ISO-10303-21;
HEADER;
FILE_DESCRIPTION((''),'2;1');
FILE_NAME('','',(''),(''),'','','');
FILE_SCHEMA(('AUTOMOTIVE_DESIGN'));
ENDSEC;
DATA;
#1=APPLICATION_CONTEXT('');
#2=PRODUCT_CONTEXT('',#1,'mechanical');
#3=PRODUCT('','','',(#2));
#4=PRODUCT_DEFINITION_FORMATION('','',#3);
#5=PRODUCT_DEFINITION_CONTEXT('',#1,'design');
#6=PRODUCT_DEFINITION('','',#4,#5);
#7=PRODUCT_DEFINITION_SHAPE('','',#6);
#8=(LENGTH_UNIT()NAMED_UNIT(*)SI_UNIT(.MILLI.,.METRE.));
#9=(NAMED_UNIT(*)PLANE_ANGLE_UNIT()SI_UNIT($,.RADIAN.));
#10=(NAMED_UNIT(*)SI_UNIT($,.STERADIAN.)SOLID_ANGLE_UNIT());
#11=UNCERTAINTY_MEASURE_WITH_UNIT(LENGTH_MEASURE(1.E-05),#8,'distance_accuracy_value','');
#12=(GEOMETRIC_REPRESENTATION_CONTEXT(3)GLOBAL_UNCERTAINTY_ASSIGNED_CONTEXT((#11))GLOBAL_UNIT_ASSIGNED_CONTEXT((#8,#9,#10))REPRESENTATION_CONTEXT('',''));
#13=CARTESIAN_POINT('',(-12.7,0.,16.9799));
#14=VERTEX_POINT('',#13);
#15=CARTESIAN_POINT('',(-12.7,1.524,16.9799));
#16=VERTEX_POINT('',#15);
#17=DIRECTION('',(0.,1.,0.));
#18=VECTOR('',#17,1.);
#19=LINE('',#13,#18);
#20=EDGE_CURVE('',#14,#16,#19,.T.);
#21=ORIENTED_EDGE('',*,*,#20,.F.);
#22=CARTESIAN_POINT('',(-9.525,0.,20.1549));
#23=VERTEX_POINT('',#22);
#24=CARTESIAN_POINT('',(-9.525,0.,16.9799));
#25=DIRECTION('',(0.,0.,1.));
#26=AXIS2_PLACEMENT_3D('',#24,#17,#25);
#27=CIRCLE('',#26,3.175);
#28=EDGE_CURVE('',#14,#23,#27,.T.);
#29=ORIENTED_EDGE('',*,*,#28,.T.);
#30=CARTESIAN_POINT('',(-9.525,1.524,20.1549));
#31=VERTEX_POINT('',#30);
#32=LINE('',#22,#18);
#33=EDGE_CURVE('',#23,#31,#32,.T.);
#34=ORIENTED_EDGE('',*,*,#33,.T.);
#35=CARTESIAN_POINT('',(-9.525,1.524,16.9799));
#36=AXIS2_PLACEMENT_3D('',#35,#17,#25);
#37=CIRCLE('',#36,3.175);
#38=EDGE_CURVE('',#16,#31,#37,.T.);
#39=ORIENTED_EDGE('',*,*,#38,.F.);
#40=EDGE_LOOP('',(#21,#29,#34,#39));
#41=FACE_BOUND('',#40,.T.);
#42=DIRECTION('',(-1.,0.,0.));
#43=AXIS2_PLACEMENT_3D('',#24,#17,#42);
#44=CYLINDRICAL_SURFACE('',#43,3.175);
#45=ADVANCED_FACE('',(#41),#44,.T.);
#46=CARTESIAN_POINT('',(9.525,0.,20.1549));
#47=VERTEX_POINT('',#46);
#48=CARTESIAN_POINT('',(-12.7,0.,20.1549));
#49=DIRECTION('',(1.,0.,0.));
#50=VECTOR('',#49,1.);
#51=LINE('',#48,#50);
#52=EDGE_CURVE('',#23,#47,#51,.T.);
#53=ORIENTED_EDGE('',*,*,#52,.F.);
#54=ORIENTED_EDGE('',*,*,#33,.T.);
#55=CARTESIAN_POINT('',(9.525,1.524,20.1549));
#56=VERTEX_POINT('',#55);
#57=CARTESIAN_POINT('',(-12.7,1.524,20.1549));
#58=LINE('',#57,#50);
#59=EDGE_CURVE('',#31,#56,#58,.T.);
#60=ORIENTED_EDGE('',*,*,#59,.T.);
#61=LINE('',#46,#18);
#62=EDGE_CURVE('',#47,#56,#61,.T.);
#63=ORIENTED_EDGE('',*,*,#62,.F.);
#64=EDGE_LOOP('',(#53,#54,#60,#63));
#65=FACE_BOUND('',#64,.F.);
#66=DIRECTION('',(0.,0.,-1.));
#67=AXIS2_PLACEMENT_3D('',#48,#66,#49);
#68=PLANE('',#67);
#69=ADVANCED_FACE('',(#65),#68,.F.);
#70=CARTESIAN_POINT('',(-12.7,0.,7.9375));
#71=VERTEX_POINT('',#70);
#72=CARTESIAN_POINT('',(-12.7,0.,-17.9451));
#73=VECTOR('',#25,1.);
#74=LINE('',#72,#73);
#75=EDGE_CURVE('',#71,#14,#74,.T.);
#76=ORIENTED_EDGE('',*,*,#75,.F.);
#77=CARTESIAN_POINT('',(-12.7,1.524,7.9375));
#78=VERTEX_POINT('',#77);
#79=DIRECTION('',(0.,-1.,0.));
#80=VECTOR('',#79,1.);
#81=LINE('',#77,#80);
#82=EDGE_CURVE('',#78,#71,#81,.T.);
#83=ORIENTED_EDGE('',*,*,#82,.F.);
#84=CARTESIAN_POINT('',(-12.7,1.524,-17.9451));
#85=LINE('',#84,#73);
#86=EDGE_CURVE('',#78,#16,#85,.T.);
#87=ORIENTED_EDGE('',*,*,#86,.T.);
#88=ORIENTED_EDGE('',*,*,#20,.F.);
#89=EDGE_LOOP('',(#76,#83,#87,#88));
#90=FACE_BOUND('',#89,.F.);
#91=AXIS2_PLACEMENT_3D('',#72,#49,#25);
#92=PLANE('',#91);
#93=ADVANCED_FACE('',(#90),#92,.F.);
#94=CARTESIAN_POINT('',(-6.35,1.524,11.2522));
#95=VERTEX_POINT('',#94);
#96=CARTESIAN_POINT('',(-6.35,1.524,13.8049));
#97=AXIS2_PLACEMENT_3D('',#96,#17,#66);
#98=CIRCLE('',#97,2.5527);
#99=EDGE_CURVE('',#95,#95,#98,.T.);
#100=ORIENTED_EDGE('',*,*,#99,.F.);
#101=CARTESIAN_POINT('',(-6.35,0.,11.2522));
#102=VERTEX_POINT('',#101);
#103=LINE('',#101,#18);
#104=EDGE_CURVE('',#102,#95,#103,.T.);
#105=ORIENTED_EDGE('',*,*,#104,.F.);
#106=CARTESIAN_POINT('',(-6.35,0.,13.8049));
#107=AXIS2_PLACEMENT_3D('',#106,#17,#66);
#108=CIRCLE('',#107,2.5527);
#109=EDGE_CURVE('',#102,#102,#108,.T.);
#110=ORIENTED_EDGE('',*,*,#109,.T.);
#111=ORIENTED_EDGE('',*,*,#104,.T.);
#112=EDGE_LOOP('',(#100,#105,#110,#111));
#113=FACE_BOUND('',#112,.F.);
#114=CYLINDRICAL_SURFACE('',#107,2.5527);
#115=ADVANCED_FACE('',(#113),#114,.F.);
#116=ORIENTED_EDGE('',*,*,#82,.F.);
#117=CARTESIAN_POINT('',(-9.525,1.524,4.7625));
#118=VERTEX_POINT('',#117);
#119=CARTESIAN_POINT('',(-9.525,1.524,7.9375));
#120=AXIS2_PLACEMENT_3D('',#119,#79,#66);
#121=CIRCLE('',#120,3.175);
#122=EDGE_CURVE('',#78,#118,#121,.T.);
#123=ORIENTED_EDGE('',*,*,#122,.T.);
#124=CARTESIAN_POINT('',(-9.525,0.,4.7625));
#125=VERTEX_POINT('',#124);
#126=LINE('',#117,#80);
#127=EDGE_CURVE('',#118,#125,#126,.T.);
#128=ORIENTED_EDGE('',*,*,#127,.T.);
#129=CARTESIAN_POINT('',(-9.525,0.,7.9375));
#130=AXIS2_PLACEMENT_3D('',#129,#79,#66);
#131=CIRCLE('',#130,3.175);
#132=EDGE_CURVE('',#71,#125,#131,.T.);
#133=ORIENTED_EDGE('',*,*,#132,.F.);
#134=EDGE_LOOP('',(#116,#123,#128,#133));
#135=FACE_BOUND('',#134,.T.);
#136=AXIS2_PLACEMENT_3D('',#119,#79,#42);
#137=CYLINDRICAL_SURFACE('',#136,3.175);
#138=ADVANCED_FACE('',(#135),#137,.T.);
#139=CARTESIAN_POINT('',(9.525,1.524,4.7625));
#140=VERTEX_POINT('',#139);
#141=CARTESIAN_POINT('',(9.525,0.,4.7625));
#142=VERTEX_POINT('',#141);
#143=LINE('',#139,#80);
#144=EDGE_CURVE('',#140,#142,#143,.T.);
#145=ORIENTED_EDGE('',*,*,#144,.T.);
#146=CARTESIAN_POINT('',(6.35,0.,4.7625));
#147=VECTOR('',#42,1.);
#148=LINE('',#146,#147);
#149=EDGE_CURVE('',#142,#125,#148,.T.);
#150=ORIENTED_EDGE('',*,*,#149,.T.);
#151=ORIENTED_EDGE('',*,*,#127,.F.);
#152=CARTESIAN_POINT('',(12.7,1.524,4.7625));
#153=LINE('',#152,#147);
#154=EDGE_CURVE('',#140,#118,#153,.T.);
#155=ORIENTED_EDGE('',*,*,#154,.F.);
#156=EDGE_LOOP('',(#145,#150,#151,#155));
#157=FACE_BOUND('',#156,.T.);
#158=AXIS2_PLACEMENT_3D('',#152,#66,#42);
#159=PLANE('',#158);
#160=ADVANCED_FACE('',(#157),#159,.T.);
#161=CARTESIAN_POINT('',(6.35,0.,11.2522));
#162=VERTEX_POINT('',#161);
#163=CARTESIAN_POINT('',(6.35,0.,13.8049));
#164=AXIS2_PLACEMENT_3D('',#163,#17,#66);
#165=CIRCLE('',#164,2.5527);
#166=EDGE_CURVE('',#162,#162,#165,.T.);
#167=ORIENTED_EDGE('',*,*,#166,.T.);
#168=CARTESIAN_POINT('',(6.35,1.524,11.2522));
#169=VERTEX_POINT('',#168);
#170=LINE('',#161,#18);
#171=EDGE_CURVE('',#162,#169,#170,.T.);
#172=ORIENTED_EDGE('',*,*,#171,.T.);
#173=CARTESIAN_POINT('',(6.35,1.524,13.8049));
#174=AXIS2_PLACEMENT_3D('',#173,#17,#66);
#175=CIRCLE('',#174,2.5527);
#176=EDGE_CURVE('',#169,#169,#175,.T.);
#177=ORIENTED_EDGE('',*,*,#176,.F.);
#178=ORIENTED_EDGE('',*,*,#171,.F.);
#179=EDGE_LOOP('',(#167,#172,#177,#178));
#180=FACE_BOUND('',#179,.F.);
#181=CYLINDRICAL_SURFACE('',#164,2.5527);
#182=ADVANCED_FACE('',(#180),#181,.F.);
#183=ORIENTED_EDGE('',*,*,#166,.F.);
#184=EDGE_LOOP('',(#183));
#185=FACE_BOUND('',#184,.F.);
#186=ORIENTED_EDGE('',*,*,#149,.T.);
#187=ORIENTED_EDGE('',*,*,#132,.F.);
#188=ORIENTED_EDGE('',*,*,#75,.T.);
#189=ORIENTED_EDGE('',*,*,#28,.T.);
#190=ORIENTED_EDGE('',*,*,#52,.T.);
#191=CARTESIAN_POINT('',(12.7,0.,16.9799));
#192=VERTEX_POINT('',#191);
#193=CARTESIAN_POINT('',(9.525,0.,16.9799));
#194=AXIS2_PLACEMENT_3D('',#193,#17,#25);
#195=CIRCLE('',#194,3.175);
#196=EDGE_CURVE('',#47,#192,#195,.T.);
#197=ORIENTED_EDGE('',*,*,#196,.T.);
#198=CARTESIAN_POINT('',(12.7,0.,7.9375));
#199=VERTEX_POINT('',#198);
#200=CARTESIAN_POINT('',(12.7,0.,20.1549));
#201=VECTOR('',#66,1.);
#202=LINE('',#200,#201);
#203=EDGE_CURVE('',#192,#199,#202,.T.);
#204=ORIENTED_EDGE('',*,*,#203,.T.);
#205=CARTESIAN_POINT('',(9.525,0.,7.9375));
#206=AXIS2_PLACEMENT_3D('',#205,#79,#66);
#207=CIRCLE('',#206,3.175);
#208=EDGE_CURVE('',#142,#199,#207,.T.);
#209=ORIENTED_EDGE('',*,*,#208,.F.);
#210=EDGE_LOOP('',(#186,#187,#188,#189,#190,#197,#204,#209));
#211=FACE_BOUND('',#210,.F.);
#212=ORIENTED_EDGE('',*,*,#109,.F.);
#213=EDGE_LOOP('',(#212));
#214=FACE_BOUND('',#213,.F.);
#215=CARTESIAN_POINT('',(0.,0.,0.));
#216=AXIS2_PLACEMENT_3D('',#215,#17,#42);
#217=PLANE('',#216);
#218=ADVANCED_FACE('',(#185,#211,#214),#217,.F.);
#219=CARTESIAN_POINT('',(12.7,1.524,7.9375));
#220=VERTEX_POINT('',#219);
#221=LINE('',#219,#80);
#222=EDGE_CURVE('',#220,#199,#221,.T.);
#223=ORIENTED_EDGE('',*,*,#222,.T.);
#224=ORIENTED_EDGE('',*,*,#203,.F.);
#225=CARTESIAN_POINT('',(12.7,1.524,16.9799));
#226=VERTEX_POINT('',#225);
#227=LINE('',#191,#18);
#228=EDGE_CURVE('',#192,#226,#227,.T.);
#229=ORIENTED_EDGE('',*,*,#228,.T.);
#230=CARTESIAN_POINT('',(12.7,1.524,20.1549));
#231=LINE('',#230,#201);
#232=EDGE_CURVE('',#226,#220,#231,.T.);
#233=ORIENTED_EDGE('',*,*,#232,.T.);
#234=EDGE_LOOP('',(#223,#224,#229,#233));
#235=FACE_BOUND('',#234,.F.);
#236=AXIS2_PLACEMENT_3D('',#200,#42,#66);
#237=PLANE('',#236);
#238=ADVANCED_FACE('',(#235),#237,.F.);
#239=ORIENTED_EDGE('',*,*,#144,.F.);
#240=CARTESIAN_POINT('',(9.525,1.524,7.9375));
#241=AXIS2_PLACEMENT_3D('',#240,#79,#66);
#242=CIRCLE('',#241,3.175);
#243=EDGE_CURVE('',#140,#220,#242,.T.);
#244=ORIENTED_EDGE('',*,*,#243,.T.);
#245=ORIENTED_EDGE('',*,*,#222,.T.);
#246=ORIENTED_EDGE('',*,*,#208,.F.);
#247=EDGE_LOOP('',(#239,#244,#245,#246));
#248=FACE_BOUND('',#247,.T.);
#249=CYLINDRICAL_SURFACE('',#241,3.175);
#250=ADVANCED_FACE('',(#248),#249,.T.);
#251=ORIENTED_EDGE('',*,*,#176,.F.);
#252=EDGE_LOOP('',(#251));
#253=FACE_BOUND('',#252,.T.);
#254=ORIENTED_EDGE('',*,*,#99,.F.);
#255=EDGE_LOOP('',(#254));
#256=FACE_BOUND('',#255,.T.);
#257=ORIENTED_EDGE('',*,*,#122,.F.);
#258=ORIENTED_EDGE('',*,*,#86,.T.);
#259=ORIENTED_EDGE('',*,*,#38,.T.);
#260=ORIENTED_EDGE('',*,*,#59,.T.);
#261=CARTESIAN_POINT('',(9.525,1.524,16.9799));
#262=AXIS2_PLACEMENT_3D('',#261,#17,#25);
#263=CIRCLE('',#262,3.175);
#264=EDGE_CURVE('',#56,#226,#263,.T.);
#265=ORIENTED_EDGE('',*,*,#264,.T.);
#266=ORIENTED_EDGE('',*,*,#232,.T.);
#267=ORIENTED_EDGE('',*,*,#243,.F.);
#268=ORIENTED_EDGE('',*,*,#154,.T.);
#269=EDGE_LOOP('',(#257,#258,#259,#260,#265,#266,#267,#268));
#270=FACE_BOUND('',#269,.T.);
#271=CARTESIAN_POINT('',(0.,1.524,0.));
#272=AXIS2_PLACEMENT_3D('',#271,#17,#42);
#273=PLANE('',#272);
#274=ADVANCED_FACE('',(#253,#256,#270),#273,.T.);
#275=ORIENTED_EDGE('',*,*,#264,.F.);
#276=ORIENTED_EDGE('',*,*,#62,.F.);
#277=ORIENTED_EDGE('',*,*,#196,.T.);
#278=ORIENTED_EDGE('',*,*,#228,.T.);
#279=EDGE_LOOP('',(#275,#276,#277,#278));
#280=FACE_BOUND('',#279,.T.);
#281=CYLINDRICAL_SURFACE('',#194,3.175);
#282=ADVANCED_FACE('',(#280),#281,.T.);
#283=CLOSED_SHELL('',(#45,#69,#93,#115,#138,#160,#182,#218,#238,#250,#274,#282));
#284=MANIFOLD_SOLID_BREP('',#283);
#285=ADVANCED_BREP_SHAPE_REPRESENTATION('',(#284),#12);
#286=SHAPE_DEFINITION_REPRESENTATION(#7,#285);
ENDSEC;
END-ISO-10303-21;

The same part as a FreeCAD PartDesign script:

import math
import FreeCAD as App
import Part
import Sketcher
from FreeCAD import Vector
Q = App.Units.Quantity


def edges_at(feature, points):
    """Names of the edges that pass closest to the given points."""
    edges = feature.Shape.Edges
    near = lambda p: min(range(len(edges)), key=lambda i: edges[i].distToShape(Part.Vertex(*p))[0])
    return sorted({f"Edge{near(p) + 1}" for p in points})


def add_polygon(sketch, points):
    """Adds a closed chain of lines whose ends are joined by coincident constraints."""
    first, n = sketch.GeometryCount, len(points)
    for a, b in zip(points, points[1:] + points[:1]):
        sketch.addGeometry(Part.LineSegment(App.Vector(*a, 0), App.Vector(*b, 0)), False)
    for i in range(n):
        sketch.addConstraint(Sketcher.Constraint("Coincident", first + i, 2, first + (i + 1) % n, 1))

doc = App.newDocument("Part")
body = doc.addObject("PartDesign::Body", "Body")

sketch1 = body.newObject("Sketcher::SketchObject", "Sketch")
sketch1.AttachmentSupport = (doc.getObject("XZ_Plane"), [""])
sketch1.MapMode = "FlatFace"
add_polygon(sketch1, [(-12.7, -17.9451), (-12.7, 20.1549), (12.7, 20.1549), (12.7, -17.9451)])
sketch1.addGeometry(Part.LineSegment(Vector(-8.89, -16.5989, 0), Vector(8.89, -16.5989, 0)), False)
sketch1.addGeometry(Part.ArcOfCircle(Part.Circle(Vector(8.89, -15.0114, 0), Vector(0, 0, 1), 1.5875), math.radians(-90), math.radians(90)), False)
sketch1.addGeometry(Part.LineSegment(Vector(8.89, -13.4239, 0), Vector(-8.89, -13.4239, 0)), False)
sketch1.addGeometry(Part.ArcOfCircle(Part.Circle(Vector(-8.89, -15.0114, 0), Vector(0, 0, 1), 1.5875), math.radians(90), math.radians(270)), False)
sketch1.addGeometry(Part.LineSegment(Vector(8.89, -8.4201, 0), Vector(-8.89, -8.4201, 0)), False)
sketch1.addGeometry(Part.ArcOfCircle(Part.Circle(Vector(-8.89, -10.0076, 0), Vector(0, 0, 1), 1.5875), math.radians(90), math.radians(270)), False)
sketch1.addGeometry(Part.LineSegment(Vector(-8.89, -11.5951, 0), Vector(8.89, -11.5951, 0)), False)
sketch1.addGeometry(Part.ArcOfCircle(Part.Circle(Vector(8.89, -10.0076, 0), Vector(0, 0, 1), 1.5875), math.radians(-90), math.radians(90)), False)
sketch1.addGeometry(Part.LineSegment(Vector(8.89, -3.4163, 0), Vector(-8.89, -3.4163, 0)), False)
sketch1.addGeometry(Part.ArcOfCircle(Part.Circle(Vector(-8.89, -5.0038, 0), Vector(0, 0, 1), 1.5875), math.radians(90), math.radians(270)), False)
sketch1.addGeometry(Part.LineSegment(Vector(-8.89, -6.5913, 0), Vector(8.89, -6.5913, 0)), False)
sketch1.addGeometry(Part.ArcOfCircle(Part.Circle(Vector(8.89, -5.0038, 0), Vector(0, 0, 1), 1.5875), math.radians(-90), math.radians(90)), False)
sketch1.addGeometry(Part.LineSegment(Vector(8.89, 1.5875, 0), Vector(-8.89, 1.5875, 0)), False)
sketch1.addGeometry(Part.ArcOfCircle(Part.Circle(Vector(-8.89, 0, 0), Vector(0, 0, 1), 1.5875), math.radians(90), math.radians(270)), False)
sketch1.addGeometry(Part.LineSegment(Vector(-8.89, -1.5875, 0), Vector(8.89, -1.5875, 0)), False)
sketch1.addGeometry(Part.ArcOfCircle(Part.Circle(Vector(8.89, 0, 0), Vector(0, 0, 1), 1.5875), math.radians(-90), math.radians(90)), False)
sketch1.addConstraint([
    Sketcher.Constraint("Tangent", 4, 2, 5, 1),
    Sketcher.Constraint("Tangent", 5, 2, 6, 1),
    Sketcher.Constraint("Tangent", 6, 2, 7, 1),
    Sketcher.Constraint("Tangent", 7, 2, 4, 1),
    Sketcher.Constraint("Tangent", 8, 2, 9, 1),
    Sketcher.Constraint("Tangent", 9, 2, 10, 1),
    Sketcher.Constraint("Tangent", 10, 2, 11, 1),
    Sketcher.Constraint("Tangent", 11, 2, 8, 1),
    Sketcher.Constraint("Tangent", 12, 2, 13, 1),
    Sketcher.Constraint("Tangent", 13, 2, 14, 1),
    Sketcher.Constraint("Tangent", 14, 2, 15, 1),
    Sketcher.Constraint("Tangent", 15, 2, 12, 1),
    Sketcher.Constraint("Tangent", 16, 2, 17, 1),
    Sketcher.Constraint("Tangent", 17, 2, 18, 1),
    Sketcher.Constraint("Tangent", 18, 2, 19, 1),
    Sketcher.Constraint("Tangent", 19, 2, 16, 1),
    Sketcher.Constraint("Vertical", 0),
    Sketcher.Constraint("Horizontal", 1),
    Sketcher.Constraint("Vertical", 2),
    Sketcher.Constraint("Horizontal", 3),
    Sketcher.Constraint("Horizontal", 4),
    Sketcher.Constraint("Horizontal", 6),
    Sketcher.Constraint("Horizontal", 8),
    Sketcher.Constraint("Horizontal", 10),
    Sketcher.Constraint("Horizontal", 12),
    Sketcher.Constraint("Horizontal", 14),
    Sketcher.Constraint("Horizontal", 16),
    Sketcher.Constraint("Horizontal", 18),
    Sketcher.Constraint("Equal", 7, 9),
    Sketcher.Constraint("Equal", 11, 13),
    Sketcher.Constraint("Equal", 15, 17),
    Sketcher.Constraint("Symmetric", 17, 3, 19, 3, -1, 1),
    Sketcher.Constraint("Vertical", 7, 3, 9, 3),
    Sketcher.Constraint("Vertical", 5, 3, 11, 3),
    Sketcher.Constraint("Vertical", 9, 3, 13, 3),
    Sketcher.Constraint("Vertical", 11, 3, 15, 3),
    Sketcher.Constraint("Vertical", 13, 3, 17, 3),
    Sketcher.Constraint("Vertical", 15, 3, 19, 3),
    Sketcher.Constraint("DistanceX", 1, 1, 1, 2, Q("1 in")),
    Sketcher.Constraint("DistanceX", 4, 1, 4, 2, Q("0.7 in")),
    Sketcher.Constraint("DistanceY", 0, 1, 0, 2, Q("1.5 in")),
    Sketcher.Constraint("Radius", 5, Q("0.0625 in")),
    Sketcher.Constraint("DistanceX", 0, 2, -1, 1, Q("0.5 in")),
    Sketcher.Constraint("DistanceY", 13, 3, -1, 1, Q("0.197 in")),
    Sketcher.Constraint("DistanceY", 7, 3, 9, 3, Q("0.197 in")),
    Sketcher.Constraint("DistanceY", 9, 3, 13, 3, Q("0.197 in")),
    Sketcher.Constraint("DistanceY", 9, 3, 0, 2, Q("1.1875 in")),
])
pad1 = body.newObject("PartDesign::Pad", "Pad")
pad1.Profile = sketch1
pad1.Length = Q("0.06 in")
pad1.Reversed = True

sketch2 = body.newObject("Sketcher::SketchObject", "Sketch001")
sketch2.AttachmentSupport = (doc.getObject("XZ_Plane"), [""])
sketch2.MapMode = "FlatFace"
sketch2.addGeometry([
    Part.Circle(Vector(-6.35, 13.8049, 0), Vector(0, 0, 1), 2.5527),
    Part.Circle(Vector(6.35, 13.8049, 0), Vector(0, 0, 1), 2.5527),
], False)
sketch2.addConstraint([
    Sketcher.Constraint("Equal", 0, 1),
    Sketcher.Constraint("Symmetric", 0, 3, 1, 3, -2),
    Sketcher.Constraint("Diameter", 0, Q("0.201 in")),
    Sketcher.Constraint("DistanceX", 0, 3, 1, 3, Q("0.5 in")),
    Sketcher.Constraint("DistanceY", -1, 1, 0, 3, Q("0.5435 in")),
])
doc.recompute()
hole = body.newObject("PartDesign::Hole", "Hole")
hole.Profile = sketch2
hole.ThreadType = "None"
hole.Diameter = Q("0.201 in")
hole.DepthType = "ThroughAll"
doc.recompute()

fillet = body.newObject("PartDesign::Fillet", "Fillet")
fillet.Base = (hole, edges_at(hole, [
    (-12.7, 0.762, -17.945),
    (12.7, 0.762, -17.945),
    (12.7, 0.762, 20.155),
    (-12.7, 0.762, 20.155),
]))
fillet.Radius = Q("0.125 in")

sketch3 = body.newObject("Sketcher::SketchObject", "Sketch002")
sketch3.AttachmentSupport = (doc.getObject("XZ_Plane"), [""])
sketch3.MapMode = "FlatFace"
sketch3.AttachmentOffset = App.Placement(Vector(0, 0, -0.06 * 25.4), App.Rotation())
add_polygon(sketch3, [(12.7, -20.6375), (-12.7, -20.6375), (-12.7, 4.7625), (12.7, 4.7625)])
sketch3.addConstraint([
    Sketcher.Constraint("Horizontal", 0),
    Sketcher.Constraint("Vertical", 1),
    Sketcher.Constraint("Horizontal", 2),
    Sketcher.Constraint("Vertical", 3),
    Sketcher.Constraint("Equal", 2, 1),
    Sketcher.Constraint("DistanceX", 0, 2, 0, 1, Q("1 in")),
    Sketcher.Constraint("DistanceX", 0, 2, -1, 1, Q("0.5 in")),
    Sketcher.Constraint("DistanceY", 0, 2, -1, 1, Q("0.8125 in")),
])
pocket1 = body.newObject("PartDesign::Pocket", "Pocket")
pocket1.Profile = sketch3
pocket1.Type = "ThroughAll"
pocket1.Reversed = True
doc.recompute()

fillet2 = body.newObject("PartDesign::Fillet", "Fillet001")
fillet2.Base = (pocket1, edges_at(pocket1, [(12.7, 0.762, 4.763), (-12.7, 0.762, 4.763)]))
fillet2.Radius = Q("0.125 in")

doc.recompute()
